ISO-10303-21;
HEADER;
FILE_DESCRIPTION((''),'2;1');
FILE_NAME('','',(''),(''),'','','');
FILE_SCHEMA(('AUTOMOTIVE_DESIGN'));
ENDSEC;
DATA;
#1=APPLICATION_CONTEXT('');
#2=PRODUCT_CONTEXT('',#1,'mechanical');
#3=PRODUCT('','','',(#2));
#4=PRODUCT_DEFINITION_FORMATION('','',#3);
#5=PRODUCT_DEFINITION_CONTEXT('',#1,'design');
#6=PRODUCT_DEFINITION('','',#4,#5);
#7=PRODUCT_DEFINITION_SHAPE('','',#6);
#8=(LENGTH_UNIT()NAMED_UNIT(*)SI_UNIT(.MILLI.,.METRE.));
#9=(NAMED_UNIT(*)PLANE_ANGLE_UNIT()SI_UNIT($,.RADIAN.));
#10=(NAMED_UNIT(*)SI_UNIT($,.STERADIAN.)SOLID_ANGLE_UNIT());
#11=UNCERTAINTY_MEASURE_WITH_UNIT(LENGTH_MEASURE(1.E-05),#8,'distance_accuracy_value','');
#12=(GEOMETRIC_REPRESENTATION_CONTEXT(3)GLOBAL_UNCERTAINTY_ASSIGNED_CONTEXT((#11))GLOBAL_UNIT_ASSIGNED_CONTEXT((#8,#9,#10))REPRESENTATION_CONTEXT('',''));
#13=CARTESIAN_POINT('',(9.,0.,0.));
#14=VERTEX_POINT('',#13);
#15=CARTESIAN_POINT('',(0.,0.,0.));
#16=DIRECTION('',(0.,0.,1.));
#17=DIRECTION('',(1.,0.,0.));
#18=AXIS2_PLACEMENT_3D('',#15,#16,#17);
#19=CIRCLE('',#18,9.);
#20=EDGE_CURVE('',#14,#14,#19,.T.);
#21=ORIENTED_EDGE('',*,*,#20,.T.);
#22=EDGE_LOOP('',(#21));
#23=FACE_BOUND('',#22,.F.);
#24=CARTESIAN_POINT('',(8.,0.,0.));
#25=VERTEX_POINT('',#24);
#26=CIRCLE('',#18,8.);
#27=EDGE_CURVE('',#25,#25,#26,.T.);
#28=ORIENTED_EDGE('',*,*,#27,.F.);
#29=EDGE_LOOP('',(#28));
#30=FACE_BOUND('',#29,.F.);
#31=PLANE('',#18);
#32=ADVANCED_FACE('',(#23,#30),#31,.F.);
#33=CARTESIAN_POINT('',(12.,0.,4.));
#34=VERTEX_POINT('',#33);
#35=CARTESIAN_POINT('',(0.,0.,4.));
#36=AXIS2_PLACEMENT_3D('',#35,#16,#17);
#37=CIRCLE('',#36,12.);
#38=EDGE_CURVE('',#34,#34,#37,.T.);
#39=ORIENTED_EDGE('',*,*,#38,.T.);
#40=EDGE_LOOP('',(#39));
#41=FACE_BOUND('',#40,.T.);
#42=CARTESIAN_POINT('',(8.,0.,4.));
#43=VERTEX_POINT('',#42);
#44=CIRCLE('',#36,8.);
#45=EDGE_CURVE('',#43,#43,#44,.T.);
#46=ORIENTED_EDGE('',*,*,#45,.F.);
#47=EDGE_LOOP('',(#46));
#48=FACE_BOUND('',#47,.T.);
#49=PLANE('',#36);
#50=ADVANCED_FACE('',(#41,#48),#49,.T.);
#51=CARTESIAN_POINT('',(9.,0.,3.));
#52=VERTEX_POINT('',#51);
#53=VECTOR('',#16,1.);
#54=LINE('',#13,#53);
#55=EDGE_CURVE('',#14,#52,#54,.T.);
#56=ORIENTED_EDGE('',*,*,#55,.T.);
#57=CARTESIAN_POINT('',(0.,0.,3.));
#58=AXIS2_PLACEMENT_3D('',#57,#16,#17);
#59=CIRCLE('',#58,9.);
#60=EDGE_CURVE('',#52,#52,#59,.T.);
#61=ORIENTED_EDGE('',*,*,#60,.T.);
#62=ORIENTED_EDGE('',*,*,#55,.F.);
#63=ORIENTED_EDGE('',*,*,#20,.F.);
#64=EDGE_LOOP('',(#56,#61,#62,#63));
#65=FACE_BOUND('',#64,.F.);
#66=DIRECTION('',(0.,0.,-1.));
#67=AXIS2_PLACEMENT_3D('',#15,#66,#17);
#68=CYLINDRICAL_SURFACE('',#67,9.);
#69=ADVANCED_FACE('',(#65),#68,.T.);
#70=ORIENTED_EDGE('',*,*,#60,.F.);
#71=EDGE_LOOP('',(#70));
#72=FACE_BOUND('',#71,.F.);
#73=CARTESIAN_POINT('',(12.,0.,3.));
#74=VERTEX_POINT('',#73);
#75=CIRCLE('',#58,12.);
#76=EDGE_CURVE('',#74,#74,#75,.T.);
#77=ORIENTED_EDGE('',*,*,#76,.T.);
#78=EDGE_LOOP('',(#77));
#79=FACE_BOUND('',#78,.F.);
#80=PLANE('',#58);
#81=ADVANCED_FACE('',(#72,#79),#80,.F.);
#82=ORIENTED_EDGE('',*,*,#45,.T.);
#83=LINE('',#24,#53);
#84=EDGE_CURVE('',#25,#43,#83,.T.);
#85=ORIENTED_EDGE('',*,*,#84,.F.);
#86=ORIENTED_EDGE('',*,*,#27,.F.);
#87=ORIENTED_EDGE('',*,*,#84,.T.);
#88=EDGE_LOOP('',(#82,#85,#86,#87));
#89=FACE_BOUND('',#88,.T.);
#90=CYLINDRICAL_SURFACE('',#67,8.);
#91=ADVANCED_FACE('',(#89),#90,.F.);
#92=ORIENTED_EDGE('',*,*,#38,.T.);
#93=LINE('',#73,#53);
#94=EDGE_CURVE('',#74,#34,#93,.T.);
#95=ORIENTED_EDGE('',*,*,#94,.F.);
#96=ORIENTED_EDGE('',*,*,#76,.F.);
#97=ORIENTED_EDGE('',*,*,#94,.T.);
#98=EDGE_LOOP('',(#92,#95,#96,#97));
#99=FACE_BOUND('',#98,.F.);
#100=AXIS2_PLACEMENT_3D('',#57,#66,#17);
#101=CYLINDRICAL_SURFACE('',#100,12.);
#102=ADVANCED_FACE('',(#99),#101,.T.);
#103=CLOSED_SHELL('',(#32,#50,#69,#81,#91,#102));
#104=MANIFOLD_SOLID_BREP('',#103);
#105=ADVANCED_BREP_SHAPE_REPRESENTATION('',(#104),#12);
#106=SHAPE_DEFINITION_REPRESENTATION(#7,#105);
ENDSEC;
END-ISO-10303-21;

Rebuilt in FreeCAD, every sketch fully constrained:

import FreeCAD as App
import Part
import Sketcher

V = App.Vector

doc = App.newDocument("Part")
body = doc.addObject("PartDesign::Body", "Body")

sketch1 = doc.addObject("Sketcher::SketchObject", "Sketch")
body.addObject(sketch1)
sketch1.AttachmentSupport = (doc.XY_Plane, [""])
sketch1.MapMode = "FlatFace"
sketch1.addGeometry([
    Part.Circle(V(0, 0, 0), V(0, 0, 1), 9),
    Part.Circle(V(0, 0, 0), V(0, 0, 1), 8),
], False)
sketch1.addConstraint([
    Sketcher.Constraint("Coincident", 0, 3, -1, 1),
    Sketcher.Constraint("Coincident", 1, 3, -1, 1),
    Sketcher.Constraint("Diameter", 0, 18.0),
    Sketcher.Constraint("Diameter", 1, 16.0),
])
pad1 = doc.addObject("PartDesign::Pad", "Pad")
body.addObject(pad1)
pad1.Profile = sketch1
pad1.Length = 3

sketch2 = doc.addObject("Sketcher::SketchObject", "Sketch001")
body.addObject(sketch2)
sketch2.AttachmentSupport = (doc.XY_Plane, [""])
sketch2.MapMode = "FlatFace"
sketch2.AttachmentOffset = App.Placement(V(0, 0, 3), App.Rotation())
sketch2.addGeometry([
    Part.Circle(V(0, 0, 0), V(0, 0, 1), 12),
    Part.Circle(V(0, 0, 0), V(0, 0, 1), 8),
], False)
sketch2.addConstraint([
    Sketcher.Constraint("Coincident", 0, 3, -1, 1),
    Sketcher.Constraint("Coincident", 1, 3, -1, 1),
    Sketcher.Constraint("Diameter", 0, 24.0),
    Sketcher.Constraint("Diameter", 1, 16.0),
])
pad2 = doc.addObject("PartDesign::Pad", "Pad001")
body.addObject(pad2)
pad2.Profile = sketch2
pad2.Length = 1

doc.recompute()
